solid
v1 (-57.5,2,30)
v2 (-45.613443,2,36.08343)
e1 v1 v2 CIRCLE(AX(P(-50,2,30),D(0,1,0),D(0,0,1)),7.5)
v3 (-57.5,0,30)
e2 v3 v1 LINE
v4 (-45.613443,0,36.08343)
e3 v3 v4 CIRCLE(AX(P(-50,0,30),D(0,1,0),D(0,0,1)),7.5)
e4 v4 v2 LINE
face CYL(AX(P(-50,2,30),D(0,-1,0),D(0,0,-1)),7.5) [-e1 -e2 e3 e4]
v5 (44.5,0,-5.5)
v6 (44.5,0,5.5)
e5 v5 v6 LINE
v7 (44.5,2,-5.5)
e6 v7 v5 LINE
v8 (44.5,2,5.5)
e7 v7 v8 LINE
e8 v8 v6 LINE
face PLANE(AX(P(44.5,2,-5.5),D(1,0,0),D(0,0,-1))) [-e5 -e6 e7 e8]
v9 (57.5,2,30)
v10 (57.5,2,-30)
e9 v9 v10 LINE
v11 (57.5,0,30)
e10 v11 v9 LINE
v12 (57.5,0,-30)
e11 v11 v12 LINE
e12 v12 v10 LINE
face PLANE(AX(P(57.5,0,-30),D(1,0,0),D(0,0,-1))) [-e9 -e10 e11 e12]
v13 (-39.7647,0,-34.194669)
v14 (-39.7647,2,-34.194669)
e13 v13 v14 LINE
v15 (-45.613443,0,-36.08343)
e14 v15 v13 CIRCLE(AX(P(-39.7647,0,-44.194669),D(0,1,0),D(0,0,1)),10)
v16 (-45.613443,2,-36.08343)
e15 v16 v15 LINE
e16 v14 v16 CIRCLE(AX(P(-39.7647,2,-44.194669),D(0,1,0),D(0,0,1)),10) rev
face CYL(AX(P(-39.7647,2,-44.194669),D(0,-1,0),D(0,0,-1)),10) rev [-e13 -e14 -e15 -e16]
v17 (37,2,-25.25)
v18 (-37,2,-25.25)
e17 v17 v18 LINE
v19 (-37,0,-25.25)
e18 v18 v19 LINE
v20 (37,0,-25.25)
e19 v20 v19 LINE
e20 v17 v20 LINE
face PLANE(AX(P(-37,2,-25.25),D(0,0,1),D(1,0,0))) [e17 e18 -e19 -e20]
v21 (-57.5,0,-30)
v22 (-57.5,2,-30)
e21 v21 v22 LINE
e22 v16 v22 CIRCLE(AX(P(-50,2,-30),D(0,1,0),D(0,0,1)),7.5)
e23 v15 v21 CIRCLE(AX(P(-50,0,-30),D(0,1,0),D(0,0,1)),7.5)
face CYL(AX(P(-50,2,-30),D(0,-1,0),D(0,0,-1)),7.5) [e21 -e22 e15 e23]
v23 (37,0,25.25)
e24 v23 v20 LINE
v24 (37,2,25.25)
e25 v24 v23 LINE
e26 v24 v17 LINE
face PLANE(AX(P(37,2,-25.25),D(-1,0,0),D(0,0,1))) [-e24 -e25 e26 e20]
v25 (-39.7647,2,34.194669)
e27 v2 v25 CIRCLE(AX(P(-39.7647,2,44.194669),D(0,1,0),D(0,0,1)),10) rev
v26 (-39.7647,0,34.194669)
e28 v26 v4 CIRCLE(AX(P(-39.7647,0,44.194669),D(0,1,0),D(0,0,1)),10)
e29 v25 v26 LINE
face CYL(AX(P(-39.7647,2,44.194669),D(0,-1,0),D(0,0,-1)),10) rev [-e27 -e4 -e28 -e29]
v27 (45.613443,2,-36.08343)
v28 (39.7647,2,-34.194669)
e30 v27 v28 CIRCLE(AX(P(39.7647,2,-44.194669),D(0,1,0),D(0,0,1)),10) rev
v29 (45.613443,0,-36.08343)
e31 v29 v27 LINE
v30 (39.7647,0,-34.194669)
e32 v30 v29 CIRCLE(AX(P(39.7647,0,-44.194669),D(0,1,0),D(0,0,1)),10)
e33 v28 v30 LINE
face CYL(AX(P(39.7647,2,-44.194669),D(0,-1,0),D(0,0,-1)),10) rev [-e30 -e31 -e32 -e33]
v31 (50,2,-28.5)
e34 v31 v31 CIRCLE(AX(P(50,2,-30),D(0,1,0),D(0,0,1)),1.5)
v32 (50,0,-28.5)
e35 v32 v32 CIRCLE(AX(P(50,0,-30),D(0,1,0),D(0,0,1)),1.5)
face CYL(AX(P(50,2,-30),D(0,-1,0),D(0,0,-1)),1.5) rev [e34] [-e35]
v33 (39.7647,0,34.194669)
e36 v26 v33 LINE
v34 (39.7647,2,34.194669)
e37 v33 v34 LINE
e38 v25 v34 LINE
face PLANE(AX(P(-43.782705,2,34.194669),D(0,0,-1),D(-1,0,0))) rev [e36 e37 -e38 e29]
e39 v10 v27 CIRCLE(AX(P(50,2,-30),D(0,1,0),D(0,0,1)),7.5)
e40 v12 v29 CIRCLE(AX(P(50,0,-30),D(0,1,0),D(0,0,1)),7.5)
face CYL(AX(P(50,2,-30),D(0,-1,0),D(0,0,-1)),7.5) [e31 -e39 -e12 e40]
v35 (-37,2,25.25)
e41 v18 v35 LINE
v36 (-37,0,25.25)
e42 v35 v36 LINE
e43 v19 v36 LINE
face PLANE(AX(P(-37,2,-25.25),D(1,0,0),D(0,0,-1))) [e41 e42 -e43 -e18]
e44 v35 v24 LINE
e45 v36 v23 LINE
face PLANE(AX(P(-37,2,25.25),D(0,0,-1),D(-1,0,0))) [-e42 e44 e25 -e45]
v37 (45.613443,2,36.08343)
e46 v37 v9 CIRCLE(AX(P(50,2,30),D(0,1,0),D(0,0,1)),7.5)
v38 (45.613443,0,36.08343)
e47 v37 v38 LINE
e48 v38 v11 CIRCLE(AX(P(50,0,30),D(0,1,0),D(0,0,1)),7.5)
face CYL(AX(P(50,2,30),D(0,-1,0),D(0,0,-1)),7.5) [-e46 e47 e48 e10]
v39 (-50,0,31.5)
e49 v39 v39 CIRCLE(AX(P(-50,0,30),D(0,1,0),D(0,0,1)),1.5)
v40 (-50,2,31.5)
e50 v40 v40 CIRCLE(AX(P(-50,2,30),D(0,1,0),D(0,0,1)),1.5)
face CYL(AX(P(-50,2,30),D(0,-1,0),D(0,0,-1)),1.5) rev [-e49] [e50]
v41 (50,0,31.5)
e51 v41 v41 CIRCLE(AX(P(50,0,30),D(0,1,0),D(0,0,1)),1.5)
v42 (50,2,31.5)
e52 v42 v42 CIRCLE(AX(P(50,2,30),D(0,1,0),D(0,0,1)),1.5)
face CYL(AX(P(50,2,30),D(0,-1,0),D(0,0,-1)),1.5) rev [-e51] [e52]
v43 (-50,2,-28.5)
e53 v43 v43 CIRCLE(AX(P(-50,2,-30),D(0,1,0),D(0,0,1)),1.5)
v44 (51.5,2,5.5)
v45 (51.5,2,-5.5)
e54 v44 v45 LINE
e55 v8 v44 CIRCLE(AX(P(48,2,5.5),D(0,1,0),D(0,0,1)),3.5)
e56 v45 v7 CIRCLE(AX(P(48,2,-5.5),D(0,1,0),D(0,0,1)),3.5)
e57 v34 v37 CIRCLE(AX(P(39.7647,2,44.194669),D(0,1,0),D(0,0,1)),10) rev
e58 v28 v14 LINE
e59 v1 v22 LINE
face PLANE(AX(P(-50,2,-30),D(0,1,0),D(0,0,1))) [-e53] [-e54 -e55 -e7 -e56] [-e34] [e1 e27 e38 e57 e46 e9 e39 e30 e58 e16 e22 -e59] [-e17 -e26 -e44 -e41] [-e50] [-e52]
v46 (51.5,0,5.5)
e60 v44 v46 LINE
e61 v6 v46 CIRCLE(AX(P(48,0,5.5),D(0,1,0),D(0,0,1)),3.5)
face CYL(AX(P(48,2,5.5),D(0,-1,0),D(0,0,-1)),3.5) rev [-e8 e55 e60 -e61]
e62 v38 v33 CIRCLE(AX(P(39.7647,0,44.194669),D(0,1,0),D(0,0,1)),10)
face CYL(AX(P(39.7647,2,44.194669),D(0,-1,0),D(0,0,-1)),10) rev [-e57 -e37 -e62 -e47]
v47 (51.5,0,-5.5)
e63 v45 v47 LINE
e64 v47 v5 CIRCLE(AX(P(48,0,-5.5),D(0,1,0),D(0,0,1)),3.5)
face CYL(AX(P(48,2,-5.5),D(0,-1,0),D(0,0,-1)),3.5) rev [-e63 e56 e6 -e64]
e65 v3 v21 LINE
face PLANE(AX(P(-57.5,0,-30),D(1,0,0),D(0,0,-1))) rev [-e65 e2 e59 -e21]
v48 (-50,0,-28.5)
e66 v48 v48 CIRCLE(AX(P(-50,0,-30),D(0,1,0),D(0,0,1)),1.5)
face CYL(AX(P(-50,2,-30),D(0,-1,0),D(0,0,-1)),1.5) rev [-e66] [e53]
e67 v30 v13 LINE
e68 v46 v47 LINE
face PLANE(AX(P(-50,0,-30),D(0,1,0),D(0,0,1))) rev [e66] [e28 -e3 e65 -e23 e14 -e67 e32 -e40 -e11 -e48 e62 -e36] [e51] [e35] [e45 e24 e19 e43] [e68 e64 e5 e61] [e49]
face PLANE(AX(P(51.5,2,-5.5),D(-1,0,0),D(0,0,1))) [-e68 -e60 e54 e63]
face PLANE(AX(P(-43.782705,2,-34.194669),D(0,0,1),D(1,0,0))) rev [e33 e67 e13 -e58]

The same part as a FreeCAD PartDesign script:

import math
import FreeCAD as App
import Part
import Sketcher
Q = App.Units.Quantity


def edges_at(feature, points):
    """Names of the edges that pass closest to the given points."""
    edges = feature.Shape.Edges
    near = lambda p: min(range(len(edges)), key=lambda i: edges[i].distToShape(Part.Vertex(*p))[0])
    return sorted({f"Edge{near(p) + 1}" for p in points})

doc = App.newDocument("Part")
params = doc.addObject("Spreadsheet::Sheet", "Params")
for row, (alias, value) in enumerate([
    ("sketch1_diameter", "3 mm"),
    ("sketch1_radius", "7.5 mm"),
    ("sketch1_radius2", "3.5 mm"),
    ("sketch1_width", "74 mm"),
    ("sketch1_height", "11 mm"),
    ("pad1_length", "2 mm"),
    ("sketch2_width", "6 mm"),
    ("sketch2_height", "60 mm"),
    ("pad2_length", "2 mm"),
    ("fillet_radius", "10 mm"),
], start=1):
    params.set(f"A{row}", alias)
    params.set(f"B{row}", "=" + value)
    params.setAlias(f"B{row}", alias)

body = doc.addObject("PartDesign::Body", "Body")

sketch1 = doc.addObject("Sketcher::SketchObject", "Sketch")
body.addObject(sketch1)
sketch1.AttachmentSupport = (doc.XZ_Plane, [""])
sketch1.MapMode = "FlatFace"
sketch1.addGeometry(Part.LineSegment(App.Vector(43.8, -34.2, 0), App.Vector(-43.8, -34.2, 0)), False)
sketch1.addGeometry(Part.ArcOfCircle(Part.Circle(App.Vector(-50, -30, 0), App.Vector(0, 0, 1), 7.5), math.radians(124), math.radians(326)), False)
sketch1.addGeometry(Part.LineSegment(App.Vector(-54.2, -23.8, 0), App.Vector(-54.2, 23.8, 0)), False)
sketch1.addGeometry(Part.ArcOfCircle(Part.Circle(App.Vector(-50, 30, 0), App.Vector(0, 0, 1), 7.5), math.radians(34), math.radians(236)), False)
sketch1.addGeometry(Part.LineSegment(App.Vector(-43.8, 34.2, 0), App.Vector(43.8, 34.2, 0)), False)
sketch1.addGeometry(Part.ArcOfCircle(Part.Circle(App.Vector(50, 30, 0), App.Vector(0, 0, 1), 7.5), math.radians(-56), math.radians(146)), False)
sketch1.addGeometry(Part.LineSegment(App.Vector(54.2, 23.8, 0), App.Vector(54.2, -23.8, 0)), False)
sketch1.addGeometry(Part.ArcOfCircle(Part.Circle(App.Vector(50, -30, 0), App.Vector(0, 0, 1), 7.5), math.radians(-146), math.radians(56)), False)
sketch1.addGeometry(Part.Circle(App.Vector(50, 30, 0), App.Vector(0, 0, 1), 1.5), False)
sketch1.addGeometry(Part.Circle(App.Vector(-50, 30, 0), App.Vector(0, 0, 1), 1.5), False)
sketch1.addGeometry(Part.LineSegment(App.Vector(51.5, -5.5, 0), App.Vector(51.5, 5.5, 0)), False)
sketch1.addGeometry(Part.ArcOfCircle(Part.Circle(App.Vector(48, 5.5, 0), App.Vector(0, 0, 1), 3.5), math.radians(0), math.radians(180)), False)
sketch1.addGeometry(Part.LineSegment(App.Vector(44.5, 5.5, 0), App.Vector(44.5, -5.5, 0)), False)
sketch1.addGeometry(Part.ArcOfCircle(Part.Circle(App.Vector(48, -5.5, 0), App.Vector(0, 0, 1), 3.5), math.radians(180), math.radians(360)), False)
sketch1.addGeometry(Part.LineSegment(App.Vector(-37, 25.2, 0), App.Vector(-37, -25.2, 0)), False)
sketch1.addGeometry(Part.LineSegment(App.Vector(-37, -25.2, 0), App.Vector(37, -25.2, 0)), False)
sketch1.addGeometry(Part.LineSegment(App.Vector(37, -25.2, 0), App.Vector(37, 25.2, 0)), False)
sketch1.addGeometry(Part.LineSegment(App.Vector(37, 25.2, 0), App.Vector(-37, 25.2, 0)), False)
sketch1.addGeometry(Part.Circle(App.Vector(50, -30, 0), App.Vector(0, 0, 1), 1.5), False)
sketch1.addGeometry(Part.Circle(App.Vector(-50, -30, 0), App.Vector(0, 0, 1), 1.5), False)
sketch1.addConstraint(Sketcher.Constraint("Coincident", 0, 2, 1, 2))
sketch1.addConstraint(Sketcher.Constraint("Coincident", 1, 1, 2, 1))
sketch1.addConstraint(Sketcher.Constraint("Coincident", 2, 2, 3, 2))
sketch1.addConstraint(Sketcher.Constraint("Coincident", 3, 1, 4, 1))
sketch1.addConstraint(Sketcher.Constraint("Coincident", 4, 2, 5, 2))
sketch1.addConstraint(Sketcher.Constraint("Coincident", 5, 1, 6, 1))
sketch1.addConstraint(Sketcher.Constraint("Coincident", 6, 2, 7, 2))
sketch1.addConstraint(Sketcher.Constraint("Coincident", 7, 1, 0, 1))
sketch1.addConstraint(Sketcher.Constraint("Tangent", 10, 2, 11, 1))
sketch1.addConstraint(Sketcher.Constraint("Tangent", 11, 2, 12, 1))
sketch1.addConstraint(Sketcher.Constraint("Tangent", 12, 2, 13, 1))
sketch1.addConstraint(Sketcher.Constraint("Tangent", 13, 2, 10, 1))
sketch1.addConstraint(Sketcher.Constraint("Coincident", 14, 2, 15, 1))
sketch1.addConstraint(Sketcher.Constraint("Coincident", 15, 2, 16, 1))
sketch1.addConstraint(Sketcher.Constraint("Coincident", 16, 2, 17, 1))
sketch1.addConstraint(Sketcher.Constraint("Coincident", 17, 2, 14, 1))
sketch1.addConstraint(Sketcher.Constraint("Horizontal", 0))
sketch1.addConstraint(Sketcher.Constraint("Vertical", 2))
sketch1.addConstraint(Sketcher.Constraint("Horizontal", 4))
sketch1.addConstraint(Sketcher.Constraint("Vertical", 6))
sketch1.addConstraint(Sketcher.Constraint("Vertical", 10))
sketch1.addConstraint(Sketcher.Constraint("Vertical", 12))
sketch1.addConstraint(Sketcher.Constraint("Vertical", 14))
sketch1.addConstraint(Sketcher.Constraint("Horizontal", 15))
sketch1.addConstraint(Sketcher.Constraint("Vertical", 16))
sketch1.addConstraint(Sketcher.Constraint("Horizontal", 17))
sketch1.addConstraint(Sketcher.Constraint("Coincident", 8, 3, 5, 3))
sketch1.addConstraint(Sketcher.Constraint("Coincident", 9, 3, 3, 3))
sketch1.addConstraint(Sketcher.Constraint("Coincident", 18, 3, 7, 3))
sketch1.addConstraint(Sketcher.Constraint("Coincident", 19, 3, 1, 3))
sketch1.addConstraint(Sketcher.Constraint("Equal", 1, 3))
sketch1.addConstraint(Sketcher.Constraint("Equal", 3, 5))
sketch1.addConstraint(Sketcher.Constraint("Equal", 5, 7))
sketch1.addConstraint(Sketcher.Constraint("Equal", 8, 9))
sketch1.addConstraint(Sketcher.Constraint("Equal", 9, 18))
sketch1.addConstraint(Sketcher.Constraint("Equal", 18, 19))
sketch1.addConstraint(Sketcher.Constraint("Symmetric", 1, 3, 5, 3, -1, 1))
sketch1.addConstraint(Sketcher.Constraint("Symmetric", 3, 3, 7, 3, -1, 1))
sketch1.addConstraint(Sketcher.Constraint("Symmetric", 14, 2, 16, 2, -1, 1))
sketch1.addConstraint(Sketcher.Constraint("Symmetric", 3, 3, 5, 3, -2))
sketch1.addConstraint(Sketcher.Constraint("Horizontal", 2, 2, 5, 1))
sketch1.addConstraint(Sketcher.Constraint("Vertical", 0, 2, 3, 1))
sketch1.addConstraint(Sketcher.Constraint("Diameter", 8, Q("3 mm")))
sketch1.addConstraint(Sketcher.Constraint("Radius", 1, Q("7.5 mm")))
sketch1.addConstraint(Sketcher.Constraint("Radius", 11, Q("3.5 mm")))
sketch1.addConstraint(Sketcher.Constraint("DistanceX", 15, 1, 15, 2, Q("74 mm")))
sketch1.addConstraint(Sketcher.Constraint("DistanceY", 10, 1, 10, 2, Q("11 mm")))
sketch1.addConstraint(Sketcher.Constraint("DistanceY", 14, 2, 14, 1, Q("50.5 mm")))
sketch1.addConstraint(Sketcher.Constraint("DistanceX", 1, 3, -1, 1, Q("50 mm")))
sketch1.addConstraint(Sketcher.Constraint("DistanceY", 1, 3, -1, 1, Q("30 mm")))
sketch1.addConstraint(Sketcher.Constraint("DistanceX", -1, 1, 11, 3, Q("48 mm")))
sketch1.addConstraint(Sketcher.Constraint("DistanceY", -1, 1, 11, 3, Q("5.5 mm")))
sketch1.addConstraint(Sketcher.Constraint("DistanceX", 0, 2, 0, 1, Q("87.565411 mm")))
sketch1.addConstraint(Sketcher.Constraint("DistanceY", 2, 1, 2, 2, Q("47.565411 mm")))
sketch1.setExpression("Constraints[42]", "Params.sketch1_diameter")
sketch1.setExpression("Constraints[43]", "Params.sketch1_radius")
sketch1.setExpression("Constraints[44]", "Params.sketch1_radius2")
sketch1.setExpression("Constraints[45]", "Params.sketch1_width")
sketch1.setExpression("Constraints[46]", "Params.sketch1_height")
pad1 = doc.addObject("PartDesign::Pad", "Pad")
body.addObject(pad1)
pad1.Profile = sketch1
pad1.setExpression("Length", "Params.pad1_length")
pad1.Reversed = True

sketch2 = doc.addObject("Sketcher::SketchObject", "Sketch001")
body.addObject(sketch2)
sketch2.AttachmentSupport = (doc.XZ_Plane, [""])
sketch2.MapMode = "FlatFace"
sketch2.AttachmentOffset = App.Placement(App.Vector(0, 0, -2), App.Rotation())
sketch2.addGeometry(Part.LineSegment(App.Vector(52, -30, 0), App.Vector(52, 30, 0)), False)
sketch2.addGeometry(Part.LineSegment(App.Vector(52, 30, 0), App.Vector(58, 30, 0)), False)
sketch2.addGeometry(Part.LineSegment(App.Vector(58, 30, 0), App.Vector(58, -30, 0)), False)
sketch2.addGeometry(Part.LineSegment(App.Vector(58, -30, 0), App.Vector(52, -30, 0)), False)
sketch2.addConstraint(Sketcher.Constraint("Coincident", 0, 2, 1, 1))
sketch2.addConstraint(Sketcher.Constraint("Coincident", 1, 2, 2, 1))
sketch2.addConstraint(Sketcher.Constraint("Coincident", 2, 2, 3, 1))
sketch2.addConstraint(Sketcher.Constraint("Coincident", 3, 2, 0, 1))
sketch2.addConstraint(Sketcher.Constraint("Vertical", 0))
sketch2.addConstraint(Sketcher.Constraint("Horizontal", 1))
sketch2.addConstraint(Sketcher.Constraint("Vertical", 2))
sketch2.addConstraint(Sketcher.Constraint("Horizontal", 3))
sketch2.addConstraint(Sketcher.Constraint("DistanceX", 1, 1, 1, 2, Q("6 mm")))
sketch2.addConstraint(Sketcher.Constraint("DistanceY", 0, 1, 0, 2, Q("60 mm")))
sketch2.addConstraint(Sketcher.Constraint("DistanceY", -1, 1, 0, 2, Q("30 mm")))
sketch2.addConstraint(Sketcher.Constraint("DistanceX", -1, 1, 0, 2, Q("51.5 mm")))
sketch2.setExpression("Constraints[8]", "Params.sketch2_width")
sketch2.setExpression("Constraints[9]", "Params.sketch2_height")
pad2 = doc.addObject("PartDesign::Pad", "Pad001")
body.addObject(pad2)
pad2.Profile = sketch2
pad2.setExpression("Length", "Params.pad2_length")
doc.recompute()

mirrored = doc.addObject("PartDesign::Mirrored", "Mirrored")
body.addObject(mirrored)
mirrored.Originals = [pad2]
mirrored.MirrorPlane = (doc.YZ_Plane, [""])
body.Tip = mirrored
doc.recompute()

fillet = doc.addObject("PartDesign::Fillet", "Fillet")
body.addObject(fillet)
fillet.Base = (mirrored, edges_at(mirrored, [
    (-43.783, 1, -34.195),
    (43.783, 1, -34.195),
    (43.783, 1, 34.195),
    (-43.783, 1, 34.195),
]))
fillet.setExpression("Radius", "Params.fillet_radius")

doc.recompute()
